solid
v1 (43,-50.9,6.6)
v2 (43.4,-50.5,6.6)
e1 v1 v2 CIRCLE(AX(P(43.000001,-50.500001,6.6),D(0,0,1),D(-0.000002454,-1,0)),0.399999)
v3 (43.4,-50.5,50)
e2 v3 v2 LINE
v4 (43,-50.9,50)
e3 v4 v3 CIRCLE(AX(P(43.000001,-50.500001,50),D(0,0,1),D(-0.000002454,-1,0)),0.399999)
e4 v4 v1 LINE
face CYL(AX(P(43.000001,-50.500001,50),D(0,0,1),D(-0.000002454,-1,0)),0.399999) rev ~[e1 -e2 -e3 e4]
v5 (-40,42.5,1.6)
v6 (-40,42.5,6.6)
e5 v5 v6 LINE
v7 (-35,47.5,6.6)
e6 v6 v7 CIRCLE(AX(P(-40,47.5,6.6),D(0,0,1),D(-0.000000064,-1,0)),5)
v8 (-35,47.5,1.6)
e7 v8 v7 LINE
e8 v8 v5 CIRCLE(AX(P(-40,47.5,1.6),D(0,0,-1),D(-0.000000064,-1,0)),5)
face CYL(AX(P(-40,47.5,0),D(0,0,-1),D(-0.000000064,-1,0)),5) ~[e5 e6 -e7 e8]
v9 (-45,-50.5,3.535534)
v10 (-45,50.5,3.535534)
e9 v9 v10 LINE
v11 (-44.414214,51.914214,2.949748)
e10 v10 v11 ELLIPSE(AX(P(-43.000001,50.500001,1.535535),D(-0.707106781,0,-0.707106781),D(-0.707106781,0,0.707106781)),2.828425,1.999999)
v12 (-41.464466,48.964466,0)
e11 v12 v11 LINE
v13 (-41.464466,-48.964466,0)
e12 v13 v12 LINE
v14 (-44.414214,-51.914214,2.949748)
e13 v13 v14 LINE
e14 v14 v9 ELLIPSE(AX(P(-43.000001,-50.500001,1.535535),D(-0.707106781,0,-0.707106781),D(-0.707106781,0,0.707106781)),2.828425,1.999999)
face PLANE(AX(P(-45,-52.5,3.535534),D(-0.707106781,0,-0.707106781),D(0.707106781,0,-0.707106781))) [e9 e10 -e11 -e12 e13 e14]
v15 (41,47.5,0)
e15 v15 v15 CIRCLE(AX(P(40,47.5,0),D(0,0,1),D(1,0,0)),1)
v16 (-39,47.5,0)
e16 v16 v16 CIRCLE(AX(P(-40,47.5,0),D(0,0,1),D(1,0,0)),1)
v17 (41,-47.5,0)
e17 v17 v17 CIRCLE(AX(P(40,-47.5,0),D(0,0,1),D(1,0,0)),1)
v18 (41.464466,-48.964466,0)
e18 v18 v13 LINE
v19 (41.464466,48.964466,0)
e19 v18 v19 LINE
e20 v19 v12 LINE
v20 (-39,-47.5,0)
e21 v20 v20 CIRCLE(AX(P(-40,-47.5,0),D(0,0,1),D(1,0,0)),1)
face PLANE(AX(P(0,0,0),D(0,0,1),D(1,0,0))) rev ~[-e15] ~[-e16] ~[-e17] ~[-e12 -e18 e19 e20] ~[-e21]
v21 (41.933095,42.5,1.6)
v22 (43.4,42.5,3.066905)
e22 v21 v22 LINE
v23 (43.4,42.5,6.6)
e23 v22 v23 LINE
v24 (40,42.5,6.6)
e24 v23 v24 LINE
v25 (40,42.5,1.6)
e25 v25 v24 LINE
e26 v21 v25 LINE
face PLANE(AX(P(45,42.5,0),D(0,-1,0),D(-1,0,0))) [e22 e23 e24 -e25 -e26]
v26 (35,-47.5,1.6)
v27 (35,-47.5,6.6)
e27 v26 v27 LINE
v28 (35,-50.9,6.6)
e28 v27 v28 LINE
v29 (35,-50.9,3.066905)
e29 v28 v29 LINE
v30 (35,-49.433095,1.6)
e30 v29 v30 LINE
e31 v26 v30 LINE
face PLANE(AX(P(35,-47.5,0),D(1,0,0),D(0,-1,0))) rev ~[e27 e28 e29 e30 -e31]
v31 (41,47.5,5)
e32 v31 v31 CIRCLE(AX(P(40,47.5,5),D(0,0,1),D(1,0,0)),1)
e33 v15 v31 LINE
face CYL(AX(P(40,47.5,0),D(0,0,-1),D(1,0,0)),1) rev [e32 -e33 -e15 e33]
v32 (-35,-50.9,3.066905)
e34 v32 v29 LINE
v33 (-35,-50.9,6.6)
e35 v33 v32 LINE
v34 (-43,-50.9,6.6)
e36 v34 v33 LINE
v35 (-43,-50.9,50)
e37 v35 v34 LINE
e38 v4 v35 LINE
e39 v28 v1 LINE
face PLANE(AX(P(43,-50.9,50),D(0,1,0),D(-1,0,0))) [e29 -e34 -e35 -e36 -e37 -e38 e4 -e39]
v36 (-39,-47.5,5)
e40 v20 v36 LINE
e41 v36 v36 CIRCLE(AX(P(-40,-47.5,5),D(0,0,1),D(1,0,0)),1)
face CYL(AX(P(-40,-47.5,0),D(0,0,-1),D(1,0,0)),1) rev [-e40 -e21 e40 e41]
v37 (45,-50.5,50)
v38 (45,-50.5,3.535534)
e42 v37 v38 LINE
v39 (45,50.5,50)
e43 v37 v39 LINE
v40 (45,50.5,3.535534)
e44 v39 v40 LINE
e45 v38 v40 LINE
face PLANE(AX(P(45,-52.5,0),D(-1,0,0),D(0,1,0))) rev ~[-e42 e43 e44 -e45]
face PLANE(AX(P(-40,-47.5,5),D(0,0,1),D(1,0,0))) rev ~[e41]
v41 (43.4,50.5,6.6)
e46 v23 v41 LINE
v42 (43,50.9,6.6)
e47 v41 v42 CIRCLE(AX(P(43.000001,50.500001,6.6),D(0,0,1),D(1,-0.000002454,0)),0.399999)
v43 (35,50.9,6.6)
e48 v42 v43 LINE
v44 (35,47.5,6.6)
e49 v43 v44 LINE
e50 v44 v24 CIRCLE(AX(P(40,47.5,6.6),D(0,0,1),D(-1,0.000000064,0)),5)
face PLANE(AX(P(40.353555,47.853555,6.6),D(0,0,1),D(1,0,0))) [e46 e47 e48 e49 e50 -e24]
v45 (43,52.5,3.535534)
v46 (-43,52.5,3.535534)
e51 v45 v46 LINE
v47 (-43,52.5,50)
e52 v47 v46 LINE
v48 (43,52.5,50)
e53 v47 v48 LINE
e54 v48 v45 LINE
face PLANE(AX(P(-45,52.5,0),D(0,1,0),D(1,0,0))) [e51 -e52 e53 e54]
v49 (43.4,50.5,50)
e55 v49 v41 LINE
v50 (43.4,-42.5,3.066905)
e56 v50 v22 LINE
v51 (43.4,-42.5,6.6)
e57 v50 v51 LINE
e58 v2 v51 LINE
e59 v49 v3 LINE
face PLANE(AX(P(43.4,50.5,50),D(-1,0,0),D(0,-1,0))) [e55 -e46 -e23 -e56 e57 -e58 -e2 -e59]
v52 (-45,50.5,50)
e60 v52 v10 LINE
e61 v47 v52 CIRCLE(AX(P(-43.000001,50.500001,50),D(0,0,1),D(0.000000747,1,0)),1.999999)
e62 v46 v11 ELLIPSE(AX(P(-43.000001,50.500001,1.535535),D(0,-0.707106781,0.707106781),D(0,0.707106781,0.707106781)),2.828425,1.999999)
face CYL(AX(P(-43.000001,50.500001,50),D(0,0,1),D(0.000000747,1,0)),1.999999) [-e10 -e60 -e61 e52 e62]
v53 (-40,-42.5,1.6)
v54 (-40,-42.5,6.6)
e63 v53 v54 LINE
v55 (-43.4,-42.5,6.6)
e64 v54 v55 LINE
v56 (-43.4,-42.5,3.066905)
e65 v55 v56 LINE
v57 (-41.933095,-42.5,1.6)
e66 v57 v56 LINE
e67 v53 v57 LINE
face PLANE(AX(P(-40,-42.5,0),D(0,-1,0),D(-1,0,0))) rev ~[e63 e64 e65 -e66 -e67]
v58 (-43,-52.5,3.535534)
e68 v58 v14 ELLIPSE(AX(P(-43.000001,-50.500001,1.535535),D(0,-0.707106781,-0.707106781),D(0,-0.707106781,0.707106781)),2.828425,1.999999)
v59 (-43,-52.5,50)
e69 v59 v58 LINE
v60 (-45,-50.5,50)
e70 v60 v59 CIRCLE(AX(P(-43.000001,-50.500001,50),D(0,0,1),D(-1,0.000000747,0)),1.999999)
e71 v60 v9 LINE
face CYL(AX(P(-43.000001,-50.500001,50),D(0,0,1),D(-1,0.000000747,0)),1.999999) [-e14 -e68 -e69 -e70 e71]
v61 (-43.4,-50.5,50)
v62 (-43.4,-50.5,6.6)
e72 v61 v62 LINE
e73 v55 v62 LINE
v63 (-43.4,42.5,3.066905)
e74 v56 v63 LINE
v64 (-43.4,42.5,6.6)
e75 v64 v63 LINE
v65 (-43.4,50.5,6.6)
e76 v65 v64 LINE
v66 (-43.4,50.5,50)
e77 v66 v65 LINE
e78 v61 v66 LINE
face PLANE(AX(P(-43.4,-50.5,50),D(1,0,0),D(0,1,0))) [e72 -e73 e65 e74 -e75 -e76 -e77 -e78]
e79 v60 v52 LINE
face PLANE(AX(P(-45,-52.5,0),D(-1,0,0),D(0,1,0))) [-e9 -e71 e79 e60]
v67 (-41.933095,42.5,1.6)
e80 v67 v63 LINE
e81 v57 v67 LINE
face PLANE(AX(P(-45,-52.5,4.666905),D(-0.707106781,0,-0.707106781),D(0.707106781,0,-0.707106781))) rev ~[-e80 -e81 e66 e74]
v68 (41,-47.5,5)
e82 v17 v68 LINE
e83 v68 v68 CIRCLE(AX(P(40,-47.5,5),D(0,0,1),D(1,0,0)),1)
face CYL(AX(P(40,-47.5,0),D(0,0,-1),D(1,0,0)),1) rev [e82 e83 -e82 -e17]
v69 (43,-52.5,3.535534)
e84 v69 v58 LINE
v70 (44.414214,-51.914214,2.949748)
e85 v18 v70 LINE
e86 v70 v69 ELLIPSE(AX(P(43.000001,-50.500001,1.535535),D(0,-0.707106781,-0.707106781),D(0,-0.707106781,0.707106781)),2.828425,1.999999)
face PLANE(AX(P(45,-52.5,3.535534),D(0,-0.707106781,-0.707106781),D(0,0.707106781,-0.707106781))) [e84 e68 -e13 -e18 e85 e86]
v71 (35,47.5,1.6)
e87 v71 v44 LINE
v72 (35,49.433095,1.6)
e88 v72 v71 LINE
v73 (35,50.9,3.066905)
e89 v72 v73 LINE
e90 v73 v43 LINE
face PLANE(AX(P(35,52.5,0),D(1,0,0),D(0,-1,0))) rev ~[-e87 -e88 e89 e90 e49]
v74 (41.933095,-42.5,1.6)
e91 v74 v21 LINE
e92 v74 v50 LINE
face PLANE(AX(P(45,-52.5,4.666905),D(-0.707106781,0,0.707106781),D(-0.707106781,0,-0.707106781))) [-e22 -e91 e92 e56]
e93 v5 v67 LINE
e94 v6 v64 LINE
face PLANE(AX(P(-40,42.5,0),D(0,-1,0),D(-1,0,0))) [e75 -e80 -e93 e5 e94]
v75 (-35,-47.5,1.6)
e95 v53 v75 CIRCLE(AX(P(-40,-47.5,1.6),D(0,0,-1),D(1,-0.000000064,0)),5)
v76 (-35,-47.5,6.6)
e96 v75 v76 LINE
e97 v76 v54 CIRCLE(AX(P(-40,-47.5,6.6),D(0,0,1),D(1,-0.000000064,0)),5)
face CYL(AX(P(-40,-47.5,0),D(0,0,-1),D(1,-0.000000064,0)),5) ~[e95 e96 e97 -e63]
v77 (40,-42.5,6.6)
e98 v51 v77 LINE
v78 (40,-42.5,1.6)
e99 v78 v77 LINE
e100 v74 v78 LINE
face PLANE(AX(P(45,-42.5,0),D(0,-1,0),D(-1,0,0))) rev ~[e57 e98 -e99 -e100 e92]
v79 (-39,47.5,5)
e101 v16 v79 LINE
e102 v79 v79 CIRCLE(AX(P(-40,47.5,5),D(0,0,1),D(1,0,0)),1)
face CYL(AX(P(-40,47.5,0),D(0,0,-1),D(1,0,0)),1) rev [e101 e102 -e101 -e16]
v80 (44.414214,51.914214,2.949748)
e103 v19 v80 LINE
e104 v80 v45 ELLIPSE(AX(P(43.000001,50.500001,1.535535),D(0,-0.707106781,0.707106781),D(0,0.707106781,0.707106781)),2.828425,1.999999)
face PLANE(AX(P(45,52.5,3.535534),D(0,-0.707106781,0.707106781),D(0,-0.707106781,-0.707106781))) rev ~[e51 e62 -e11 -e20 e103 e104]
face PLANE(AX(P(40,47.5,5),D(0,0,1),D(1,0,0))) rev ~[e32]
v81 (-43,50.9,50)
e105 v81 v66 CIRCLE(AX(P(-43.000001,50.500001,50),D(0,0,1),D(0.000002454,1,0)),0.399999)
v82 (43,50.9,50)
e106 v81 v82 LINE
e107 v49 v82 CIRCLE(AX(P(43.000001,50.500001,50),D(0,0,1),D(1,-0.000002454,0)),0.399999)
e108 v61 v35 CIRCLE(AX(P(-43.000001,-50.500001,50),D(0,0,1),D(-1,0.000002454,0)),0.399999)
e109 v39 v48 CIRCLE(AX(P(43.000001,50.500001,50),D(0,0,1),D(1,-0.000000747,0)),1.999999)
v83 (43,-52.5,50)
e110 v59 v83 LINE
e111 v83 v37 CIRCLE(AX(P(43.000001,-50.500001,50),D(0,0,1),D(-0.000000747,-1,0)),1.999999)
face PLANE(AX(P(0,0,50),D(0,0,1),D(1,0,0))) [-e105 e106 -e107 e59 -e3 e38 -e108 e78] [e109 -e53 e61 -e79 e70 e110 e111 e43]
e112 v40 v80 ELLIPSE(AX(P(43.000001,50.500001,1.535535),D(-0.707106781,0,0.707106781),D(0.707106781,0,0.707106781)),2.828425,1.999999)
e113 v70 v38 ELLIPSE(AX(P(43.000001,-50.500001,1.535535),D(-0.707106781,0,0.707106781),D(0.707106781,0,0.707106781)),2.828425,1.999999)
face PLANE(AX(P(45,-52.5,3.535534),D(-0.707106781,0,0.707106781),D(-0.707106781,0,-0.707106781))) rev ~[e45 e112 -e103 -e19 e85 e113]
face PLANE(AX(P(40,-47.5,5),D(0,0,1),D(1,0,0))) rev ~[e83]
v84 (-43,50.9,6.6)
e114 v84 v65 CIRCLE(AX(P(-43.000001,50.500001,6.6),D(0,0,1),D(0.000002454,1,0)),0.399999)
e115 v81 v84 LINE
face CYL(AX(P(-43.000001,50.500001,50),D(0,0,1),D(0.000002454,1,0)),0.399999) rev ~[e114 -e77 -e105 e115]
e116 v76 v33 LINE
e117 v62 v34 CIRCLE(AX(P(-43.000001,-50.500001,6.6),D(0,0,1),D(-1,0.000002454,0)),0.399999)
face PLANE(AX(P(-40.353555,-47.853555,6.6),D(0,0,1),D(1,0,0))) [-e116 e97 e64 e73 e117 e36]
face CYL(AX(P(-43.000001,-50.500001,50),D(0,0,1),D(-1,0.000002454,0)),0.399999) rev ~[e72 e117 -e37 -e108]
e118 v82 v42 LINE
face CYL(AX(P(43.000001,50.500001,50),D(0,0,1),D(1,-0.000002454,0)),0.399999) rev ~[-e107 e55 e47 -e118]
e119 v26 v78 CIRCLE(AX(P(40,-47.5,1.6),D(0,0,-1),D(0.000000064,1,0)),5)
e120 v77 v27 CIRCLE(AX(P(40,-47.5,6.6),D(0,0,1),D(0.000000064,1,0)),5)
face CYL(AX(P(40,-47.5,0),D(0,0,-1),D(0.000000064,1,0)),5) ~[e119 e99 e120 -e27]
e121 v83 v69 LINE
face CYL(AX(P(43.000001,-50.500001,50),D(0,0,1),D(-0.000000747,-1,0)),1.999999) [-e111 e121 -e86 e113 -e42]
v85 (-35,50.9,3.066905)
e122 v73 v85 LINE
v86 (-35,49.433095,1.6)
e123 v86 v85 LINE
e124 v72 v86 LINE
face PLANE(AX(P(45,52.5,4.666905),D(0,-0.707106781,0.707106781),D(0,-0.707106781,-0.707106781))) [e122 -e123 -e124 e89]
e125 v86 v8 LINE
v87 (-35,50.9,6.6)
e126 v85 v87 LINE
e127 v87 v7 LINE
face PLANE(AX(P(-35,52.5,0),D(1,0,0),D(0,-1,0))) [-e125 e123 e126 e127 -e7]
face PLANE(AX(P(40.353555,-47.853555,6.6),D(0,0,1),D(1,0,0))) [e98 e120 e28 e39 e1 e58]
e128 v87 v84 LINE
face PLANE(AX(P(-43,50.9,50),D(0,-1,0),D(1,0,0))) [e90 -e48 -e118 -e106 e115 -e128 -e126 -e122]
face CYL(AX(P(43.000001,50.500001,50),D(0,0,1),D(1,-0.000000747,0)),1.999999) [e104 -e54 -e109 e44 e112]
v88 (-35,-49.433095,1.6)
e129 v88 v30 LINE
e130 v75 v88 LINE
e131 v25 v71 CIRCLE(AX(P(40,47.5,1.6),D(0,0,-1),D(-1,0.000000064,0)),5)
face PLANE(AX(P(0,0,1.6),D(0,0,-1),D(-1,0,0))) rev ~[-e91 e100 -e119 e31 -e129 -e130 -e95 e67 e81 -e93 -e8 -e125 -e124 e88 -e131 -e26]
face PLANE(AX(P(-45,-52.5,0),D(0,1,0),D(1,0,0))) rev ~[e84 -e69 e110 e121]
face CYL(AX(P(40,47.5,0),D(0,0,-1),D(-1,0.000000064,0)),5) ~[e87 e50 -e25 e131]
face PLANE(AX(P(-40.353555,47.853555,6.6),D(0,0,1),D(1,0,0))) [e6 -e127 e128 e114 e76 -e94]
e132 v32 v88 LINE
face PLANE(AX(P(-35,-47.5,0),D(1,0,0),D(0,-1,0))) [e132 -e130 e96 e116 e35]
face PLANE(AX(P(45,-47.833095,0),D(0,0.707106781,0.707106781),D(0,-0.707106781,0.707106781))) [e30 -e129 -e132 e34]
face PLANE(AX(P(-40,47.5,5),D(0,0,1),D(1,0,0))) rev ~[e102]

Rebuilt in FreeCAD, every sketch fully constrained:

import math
import FreeCAD as App
import Part
import Sketcher

V = App.Vector
Q = App.Units.Quantity

doc = App.newDocument("Part")
params = doc.addObject("Spreadsheet::Sheet", "Params")
for row, (alias, value) in enumerate([
    ("sketch1_width", "90 mm"),
    ("sketch1_height", "105 mm"),
    ("pad1_length", "50 mm"),
    ("sketch2_radius", "0.399999 mm"),
    ("sketch2_width", "86 mm"),
    ("sketch2_height", "101 mm"),
    ("pocket1_length", "48.4 mm"),
    ("sketch3_length", "6.6 mm"),
    ("pad2_length", "105 mm"),
    ("sketch4_length", "6.6 mm"),
    ("pad3_length", "90 mm"),
    ("sketch5_radius", "5 mm"),
    ("sketch5_width", "10 mm"),
    ("pad4_length", "6.6 mm"),
    ("sketch6_diameter", "2 mm"),
    ("pocket2_length", "5 mm"),
    ("sketch7_length", "5 mm"),
    ("sketch8_length", "5 mm"),
    ("sketch9_radius", "1.999999 mm"),
], start=1):
    params.set(f"A{row}", alias)
    params.set(f"B{row}", "=" + value)
    params.setAlias(f"B{row}", alias)

body = doc.addObject("PartDesign::Body", "Body")

sketch1 = doc.addObject("Sketcher::SketchObject", "Sketch")
body.addObject(sketch1)
sketch1.AttachmentSupport = (doc.XY_Plane, [""])
sketch1.MapMode = "FlatFace"
sketch1.addGeometry(Part.LineSegment(V(-45, 52, 0), V(-45, -52, 0)), False)
sketch1.addGeometry(Part.LineSegment(V(-45, -52, 0), V(45, -52, 0)), False)
sketch1.addGeometry(Part.LineSegment(V(45, -52, 0), V(45, 52, 0)), False)
sketch1.addGeometry(Part.LineSegment(V(45, 52, 0), V(-45, 52, 0)), False)
sketch1.addConstraint(Sketcher.Constraint("Coincident", 0, 2, 1, 1))
sketch1.addConstraint(Sketcher.Constraint("Coincident", 1, 2, 2, 1))
sketch1.addConstraint(Sketcher.Constraint("Coincident", 2, 2, 3, 1))
sketch1.addConstraint(Sketcher.Constraint("Coincident", 3, 2, 0, 1))
sketch1.addConstraint(Sketcher.Constraint("Vertical", 0))
sketch1.addConstraint(Sketcher.Constraint("Horizontal", 1))
sketch1.addConstraint(Sketcher.Constraint("Vertical", 2))
sketch1.addConstraint(Sketcher.Constraint("Horizontal", 3))
sketch1.addConstraint(Sketcher.Constraint("Symmetric", 0, 2, 2, 2, -1, 1))
sketch1.addConstraint(Sketcher.Constraint("DistanceX", 1, 1, 1, 2, Q("90 mm")))
sketch1.addConstraint(Sketcher.Constraint("DistanceY", 0, 2, 0, 1, Q("105 mm")))
sketch1.setExpression("Constraints[9]", "Params.sketch1_width")
sketch1.setExpression("Constraints[10]", "Params.sketch1_height")
pad1 = doc.addObject("PartDesign::Pad", "Pad")
body.addObject(pad1)
pad1.Profile = sketch1
pad1.setExpression("Length", "Params.pad1_length")

sketch2 = doc.addObject("Sketcher::SketchObject", "Sketch001")
body.addObject(sketch2)
sketch2.AttachmentSupport = (doc.XY_Plane, [""])
sketch2.MapMode = "FlatFace"
sketch2.AttachmentOffset = App.Placement(V(0, 0, 50), App.Rotation())
sketch2.addGeometry(Part.LineSegment(V(43, 50.9, 0), V(-43, 50.9, 0)), False)
sketch2.addGeometry(Part.ArcOfCircle(Part.Circle(V(-43, 50.5, 0), V(0, 0, 1), 0.4), math.radians(90), math.radians(180)), False)
sketch2.addGeometry(Part.LineSegment(V(-43.4, 50.5, 0), V(-43.4, -50.5, 0)), False)
sketch2.addGeometry(Part.ArcOfCircle(Part.Circle(V(-43, -50.5, 0), V(0, 0, 1), 0.4), math.radians(180), math.radians(270)), False)
sketch2.addGeometry(Part.LineSegment(V(-43, -50.9, 0), V(43, -50.9, 0)), False)
sketch2.addGeometry(Part.ArcOfCircle(Part.Circle(V(43, -50.5, 0), V(0, 0, 1), 0.4), math.radians(-90), math.radians(0)), False)
sketch2.addGeometry(Part.LineSegment(V(43.4, -50.5, 0), V(43.4, 50.5, 0)), False)
sketch2.addGeometry(Part.ArcOfCircle(Part.Circle(V(43, 50.5, 0), V(0, 0, 1), 0.4), math.radians(0), math.radians(90)), False)
sketch2.addConstraint(Sketcher.Constraint("Coincident", 0, 2, 1, 1))
sketch2.addConstraint(Sketcher.Constraint("Coincident", 1, 2, 2, 1))
sketch2.addConstraint(Sketcher.Constraint("Coincident", 2, 2, 3, 1))
sketch2.addConstraint(Sketcher.Constraint("Coincident", 3, 2, 4, 1))
sketch2.addConstraint(Sketcher.Constraint("Coincident", 4, 2, 5, 1))
sketch2.addConstraint(Sketcher.Constraint("Coincident", 5, 2, 6, 1))
sketch2.addConstraint(Sketcher.Constraint("Coincident", 6, 2, 7, 1))
sketch2.addConstraint(Sketcher.Constraint("Coincident", 7, 2, 0, 1))
sketch2.addConstraint(Sketcher.Constraint("Horizontal", 0))
sketch2.addConstraint(Sketcher.Constraint("Vertical", 2))
sketch2.addConstraint(Sketcher.Constraint("Horizontal", 4))
sketch2.addConstraint(Sketcher.Constraint("Vertical", 6))
sketch2.addConstraint(Sketcher.Constraint("Equal", 1, 3))
sketch2.addConstraint(Sketcher.Constraint("Equal", 3, 5))
sketch2.addConstraint(Sketcher.Constraint("Equal", 5, 7))
sketch2.addConstraint(Sketcher.Constraint("Symmetric", 1, 3, 5, 3, -1, 1))
sketch2.addConstraint(Sketcher.Constraint("Horizontal", 7, 3, 1, 2))
sketch2.addConstraint(Sketcher.Constraint("Horizontal", 5, 3, 2, 2))
sketch2.addConstraint(Sketcher.Constraint("Horizontal", 2, 2, 5, 2))
sketch2.addConstraint(Sketcher.Constraint("Horizontal", 1, 2, 6, 2))
sketch2.addConstraint(Sketcher.Constraint("Vertical", 3, 3, 0, 2))
sketch2.addConstraint(Sketcher.Constraint("Vertical", 0, 2, 3, 2))
sketch2.addConstraint(Sketcher.Constraint("Vertical", 7, 3, 4, 2))
sketch2.addConstraint(Sketcher.Constraint("Vertical", 4, 2, 7, 2))
sketch2.addConstraint(Sketcher.Constraint("Radius", 1, Q("0.399999 mm")))
sketch2.addConstraint(Sketcher.Constraint("DistanceX", 0, 2, 0, 1, Q("86 mm")))
sketch2.addConstraint(Sketcher.Constraint("DistanceY", 2, 2, 2, 1, Q("101 mm")))
sketch2.setExpression("Constraints[24]", "Params.sketch2_radius")
sketch2.setExpression("Constraints[25]", "Params.sketch2_width")
sketch2.setExpression("Constraints[26]", "Params.sketch2_height")
pocket1 = doc.addObject("PartDesign::Pocket", "Pocket")
body.addObject(pocket1)
pocket1.Profile = sketch2
pocket1.setExpression("Length", "Params.pocket1_length")

sketch3 = doc.addObject("Sketcher::SketchObject", "Sketch002")
body.addObject(sketch3)
sketch3.AttachmentSupport = (doc.XZ_Plane, [""])
sketch3.MapMode = "FlatFace"
sketch3.AttachmentOffset = App.Placement(V(0, 0, 52.5), App.Rotation())
sketch3.addGeometry(Part.LineSegment(V(-40.3, 0, 0), V(-45, 4.7, 0)), False)
sketch3.addGeometry(Part.LineSegment(V(-45, 4.7, 0), V(-45, 0, 0)), False)
sketch3.addGeometry(Part.LineSegment(V(-45, 0, 0), V(-40.3, 0, 0)), False)
sketch3.addGeometry(Part.LineSegment(V(40.3, 0, 0), V(45, 0, 0)), False)
sketch3.addGeometry(Part.LineSegment(V(45, 0, 0), V(45, 4.7, 0)), False)
sketch3.addGeometry(Part.LineSegment(V(45, 4.7, 0), V(40.3, 0, 0)), False)
sketch3.addConstraint(Sketcher.Constraint("Coincident", 0, 2, 1, 1))
sketch3.addConstraint(Sketcher.Constraint("Coincident", 1, 2, 2, 1))
sketch3.addConstraint(Sketcher.Constraint("Coincident", 2, 2, 0, 1))
sketch3.addConstraint(Sketcher.Constraint("Coincident", 3, 2, 4, 1))
sketch3.addConstraint(Sketcher.Constraint("Coincident", 4, 2, 5, 1))
sketch3.addConstraint(Sketcher.Constraint("Coincident", 5, 2, 3, 1))
sketch3.addConstraint(Sketcher.Constraint("Vertical", 1))
sketch3.addConstraint(Sketcher.Constraint("Horizontal", 2))
sketch3.addConstraint(Sketcher.Constraint("Horizontal", 3))
sketch3.addConstraint(Sketcher.Constraint("Vertical", 4))
sketch3.addConstraint(Sketcher.Constraint("Symmetric", 1, 2, 3, 2, -1, 1))
sketch3.addConstraint(Sketcher.Constraint("Symmetric", 2, 2, 5, 2, -2))
sketch3.addConstraint(Sketcher.Constraint("Perpendicular", 0, 5))
sketch3.addConstraint(Sketcher.Constraint("Horizontal", 0, 2, 4, 2))
sketch3.addConstraint(Sketcher.Constraint("DistanceX", 0, 2, -1, 1, Q("45 mm")))
sketch3.addConstraint(Sketcher.Constraint("Distance", 0, Q("6.6 mm")))
sketch3.setExpression("Constraints[15]", "Params.sketch3_length")
pad2 = doc.addObject("PartDesign::Pad", "Pad001")
body.addObject(pad2)
pad2.Profile = sketch3
pad2.setExpression("Length", "Params.pad2_length")
pad2.Reversed = True

sketch4 = doc.addObject("Sketcher::SketchObject", "Sketch003")
body.addObject(sketch4)
sketch4.AttachmentSupport = (doc.YZ_Plane, [""])
sketch4.MapMode = "FlatFace"
sketch4.AttachmentOffset = App.Placement(V(0, 0, 45), App.Rotation())
sketch4.addGeometry(Part.LineSegment(V(-52.5, 4.7, 0), V(-52.5, 0, 0)), False)
sketch4.addGeometry(Part.LineSegment(V(-52.5, 0, 0), V(-47.8, 0, 0)), False)
sketch4.addGeometry(Part.LineSegment(V(-47.8, 0, 0), V(-52.5, 4.7, 0)), False)
sketch4.addGeometry(Part.LineSegment(V(47.8, 0, 0), V(52.5, 0, 0)), False)
sketch4.addGeometry(Part.LineSegment(V(52.5, 0, 0), V(52.5, 4.7, 0)), False)
sketch4.addGeometry(Part.LineSegment(V(52.5, 4.7, 0), V(47.8, 0, 0)), False)
sketch4.addConstraint(Sketcher.Constraint("Coincident", 0, 2, 1, 1))
sketch4.addConstraint(Sketcher.Constraint("Coincident", 1, 2, 2, 1))
sketch4.addConstraint(Sketcher.Constraint("Coincident", 2, 2, 0, 1))
sketch4.addConstraint(Sketcher.Constraint("Coincident", 3, 2, 4, 1))
sketch4.addConstraint(Sketcher.Constraint("Coincident", 4, 2, 5, 1))
sketch4.addConstraint(Sketcher.Constraint("Coincident", 5, 2, 3, 1))
sketch4.addConstraint(Sketcher.Constraint("Vertical", 0))
sketch4.addConstraint(Sketcher.Constraint("Horizontal", 1))
sketch4.addConstraint(Sketcher.Constraint("Horizontal", 3))
sketch4.addConstraint(Sketcher.Constraint("Vertical", 4))
sketch4.addConstraint(Sketcher.Constraint("Symmetric", 0, 2, 3, 2, -1, 1))
sketch4.addConstraint(Sketcher.Constraint("Symmetric", 1, 2, 5, 2, -2))
sketch4.addConstraint(Sketcher.Constraint("Perpendicular", 2, 5))
sketch4.addConstraint(Sketcher.Constraint("Horizontal", 2, 2, 4, 2))
sketch4.addConstraint(Sketcher.Constraint("DistanceX", 0, 2, 3, 2, Q("105 mm")))
sketch4.addConstraint(Sketcher.Constraint("Distance", 2, Q("6.6 mm")))
sketch4.setExpression("Constraints[15]", "Params.sketch4_length")
pad3 = doc.addObject("PartDesign::Pad", "Pad002")
body.addObject(pad3)
pad3.Profile = sketch4
pad3.setExpression("Length", "Params.pad3_length")
pad3.Reversed = True

sketch5 = doc.addObject("Sketcher::SketchObject", "Sketch004")
body.addObject(sketch5)
sketch5.AttachmentSupport = (doc.XY_Plane, [""])
sketch5.MapMode = "FlatFace"
sketch5.addGeometry(Part.ArcOfCircle(Part.Circle(V(-40, 47.5, 0), V(0, 0, 1), 5), math.radians(-90), math.radians(0)), False)
sketch5.addGeometry(Part.LineSegment(V(-35, 47.5, 0), V(-35, 52.5, 0)), False)
sketch5.addGeometry(Part.LineSegment(V(-35, 52.5, 0), V(-45, 52.5, 0)), False)
sketch5.addGeometry(Part.LineSegment(V(-45, 52.5, 0), V(-45, 42.5, 0)), False)
sketch5.addGeometry(Part.LineSegment(V(-45, 42.5, 0), V(-40, 42.5, 0)), False)
sketch5.addGeometry(Part.ArcOfCircle(Part.Circle(V(40, 47.5, 0), V(0, 0, 1), 5), math.radians(180), math.radians(270)), False)
sketch5.addGeometry(Part.LineSegment(V(40, 42.5, 0), V(45, 42.5, 0)), False)
sketch5.addGeometry(Part.LineSegment(V(45, 42.5, 0), V(45, 52.5, 0)), False)
sketch5.addGeometry(Part.LineSegment(V(45, 52.5, 0), V(35, 52.5, 0)), False)
sketch5.addGeometry(Part.LineSegment(V(35, 52.5, 0), V(35, 47.5, 0)), False)
sketch5.addGeometry(Part.ArcOfCircle(Part.Circle(V(40, -47.5, 0), V(0, 0, 1), 5), math.radians(90), math.radians(180)), False)
sketch5.addGeometry(Part.LineSegment(V(35, -47.5, 0), V(35, -52.5, 0)), False)
sketch5.addGeometry(Part.LineSegment(V(35, -52.5, 0), V(45, -52.5, 0)), False)
sketch5.addGeometry(Part.LineSegment(V(45, -52.5, 0), V(45, -42.5, 0)), False)
sketch5.addGeometry(Part.LineSegment(V(45, -42.5, 0), V(40, -42.5, 0)), False)
sketch5.addGeometry(Part.ArcOfCircle(Part.Circle(V(-40, -47.5, 0), V(0, 0, 1), 5), math.radians(0), math.radians(90)), False)
sketch5.addGeometry(Part.LineSegment(V(-40, -42.5, 0), V(-45, -42.5, 0)), False)
sketch5.addGeometry(Part.LineSegment(V(-45, -42.5, 0), V(-45, -52.5, 0)), False)
sketch5.addGeometry(Part.LineSegment(V(-45, -52.5, 0), V(-35, -52.5, 0)), False)
sketch5.addGeometry(Part.LineSegment(V(-35, -52.5, 0), V(-35, -47.5, 0)), False)
sketch5.addConstraint(Sketcher.Constraint("Tangent", 0, 2, 1, 1))
sketch5.addConstraint(Sketcher.Constraint("Coincident", 1, 2, 2, 1))
sketch5.addConstraint(Sketcher.Constraint("Coincident", 2, 2, 3, 1))
sketch5.addConstraint(Sketcher.Constraint("Coincident", 3, 2, 4, 1))
sketch5.addConstraint(Sketcher.Constraint("Tangent", 4, 2, 0, 1))
sketch5.addConstraint(Sketcher.Constraint("Tangent", 5, 2, 6, 1))
sketch5.addConstraint(Sketcher.Constraint("Coincident", 6, 2, 7, 1))
sketch5.addConstraint(Sketcher.Constraint("Coincident", 7, 2, 8, 1))
sketch5.addConstraint(Sketcher.Constraint("Coincident", 8, 2, 9, 1))
sketch5.addConstraint(Sketcher.Constraint("Tangent", 9, 2, 5, 1))
sketch5.addConstraint(Sketcher.Constraint("Tangent", 10, 2, 11, 1))
sketch5.addConstraint(Sketcher.Constraint("Coincident", 11, 2, 12, 1))
sketch5.addConstraint(Sketcher.Constraint("Coincident", 12, 2, 13, 1))
sketch5.addConstraint(Sketcher.Constraint("Coincident", 13, 2, 14, 1))
sketch5.addConstraint(Sketcher.Constraint("Tangent", 14, 2, 10, 1))
sketch5.addConstraint(Sketcher.Constraint("Tangent", 15, 2, 16, 1))
sketch5.addConstraint(Sketcher.Constraint("Coincident", 16, 2, 17, 1))
sketch5.addConstraint(Sketcher.Constraint("Coincident", 17, 2, 18, 1))
sketch5.addConstraint(Sketcher.Constraint("Coincident", 18, 2, 19, 1))
sketch5.addConstraint(Sketcher.Constraint("Tangent", 19, 2, 15, 1))
sketch5.addConstraint(Sketcher.Constraint("Vertical", 1))
sketch5.addConstraint(Sketcher.Constraint("Horizontal", 2))
sketch5.addConstraint(Sketcher.Constraint("Vertical", 3))
sketch5.addConstraint(Sketcher.Constraint("Horizontal", 4))
sketch5.addConstraint(Sketcher.Constraint("Horizontal", 6))
sketch5.addConstraint(Sketcher.Constraint("Vertical", 7))
sketch5.addConstraint(Sketcher.Constraint("Horizontal", 8))
sketch5.addConstraint(Sketcher.Constraint("Vertical", 9))
sketch5.addConstraint(Sketcher.Constraint("Vertical", 11))
sketch5.addConstraint(Sketcher.Constraint("Horizontal", 12))
sketch5.addConstraint(Sketcher.Constraint("Vertical", 13))
sketch5.addConstraint(Sketcher.Constraint("Horizontal", 14))
sketch5.addConstraint(Sketcher.Constraint("Horizontal", 16))
sketch5.addConstraint(Sketcher.Constraint("Vertical", 17))
sketch5.addConstraint(Sketcher.Constraint("Horizontal", 18))
sketch5.addConstraint(Sketcher.Constraint("Vertical", 19))
sketch5.addConstraint(Sketcher.Constraint("Equal", 0, 5))
sketch5.addConstraint(Sketcher.Constraint("Equal", 5, 10))
sketch5.addConstraint(Sketcher.Constraint("Equal", 10, 15))
sketch5.addConstraint(Sketcher.Constraint("Symmetric", 0, 3, 10, 3, -1, 1))
sketch5.addConstraint(Sketcher.Constraint("Symmetric", 5, 3, 15, 3, -1, 1))
sketch5.addConstraint(Sketcher.Constraint("Symmetric", 2, 2, 12, 2, -1, 1))
sketch5.addConstraint(Sketcher.Constraint("Symmetric", 7, 2, 17, 2, -1, 1))
sketch5.addConstraint(Sketcher.Constraint("Symmetric", 0, 3, 5, 3, -2))
sketch5.addConstraint(Sketcher.Constraint("Symmetric", 2, 2, 7, 2, -2))
sketch5.addConstraint(Sketcher.Constraint("Equal", 16, 1))
sketch5.addConstraint(Sketcher.Constraint("Radius", 0, Q("5 mm")))
sketch5.addConstraint(Sketcher.Constraint("DistanceX", 2, 2, 2, 1, Q("10 mm")))
sketch5.addConstraint(Sketcher.Constraint("DistanceX", 0, 3, -1, 1, Q("40 mm")))
sketch5.addConstraint(Sketcher.Constraint("DistanceY", 10, 3, 5, 3, Q("94.999999 mm")))
sketch5.setExpression("Constraints[46]", "Params.sketch5_radius")
sketch5.setExpression("Constraints[47]", "Params.sketch5_width")
pad4 = doc.addObject("PartDesign::Pad", "Pad003")
body.addObject(pad4)
pad4.Profile = sketch5
pad4.setExpression("Length", "Params.pad4_length")

sketch6 = doc.addObject("Sketcher::SketchObject", "Sketch005")
body.addObject(sketch6)
sketch6.AttachmentSupport = (doc.XY_Plane, [""])
sketch6.MapMode = "FlatFace"
sketch6.addGeometry(Part.Circle(V(-40, 47.5, 0), V(0, 0, 1), 1), False)
sketch6.addGeometry(Part.Circle(V(40, 47.5, 0), V(0, 0, 1), 1), False)
sketch6.addGeometry(Part.Circle(V(40, -47.5, 0), V(0, 0, 1), 1), False)
sketch6.addGeometry(Part.Circle(V(-40, -47.5, 0), V(0, 0, 1), 1), False)
sketch6.addConstraint(Sketcher.Constraint("Equal", 0, 1))
sketch6.addConstraint(Sketcher.Constraint("Equal", 1, 2))
sketch6.addConstraint(Sketcher.Constraint("Equal", 2, 3))
sketch6.addConstraint(Sketcher.Constraint("Symmetric", 0, 3, 2, 3, -1, 1))
sketch6.addConstraint(Sketcher.Constraint("Symmetric", 1, 3, 3, 3, -1, 1))
sketch6.addConstraint(Sketcher.Constraint("Symmetric", 0, 3, 1, 3, -2))
sketch6.addConstraint(Sketcher.Constraint("Diameter", 0, Q("2 mm")))
sketch6.addConstraint(Sketcher.Constraint("DistanceX", 0, 3, -1, 1, Q("40 mm")))
sketch6.addConstraint(Sketcher.Constraint("DistanceY", 2, 3, 1, 3, Q("95 mm")))
sketch6.setExpression("Constraints[6]", "Params.sketch6_diameter")
pocket2 = doc.addObject("PartDesign::Pocket", "Pocket001")
body.addObject(pocket2)
pocket2.Profile = sketch6
pocket2.setExpression("Length", "Params.pocket2_length")
pocket2.Reversed = True

sketch7 = doc.addObject("Sketcher::SketchObject", "Sketch006")
body.addObject(sketch7)
sketch7.AttachmentSupport = (doc.XZ_Plane, [""])
sketch7.MapMode = "FlatFace"
sketch7.AttachmentOffset = App.Placement(V(0, 0, 52.5), App.Rotation())
sketch7.addGeometry(Part.LineSegment(V(-45, 3.5, 0), V(-45, 0, 0)), False)
sketch7.addGeometry(Part.LineSegment(V(-45, 0, 0), V(-41.5, 0, 0)), False)
sketch7.addGeometry(Part.LineSegment(V(-41.5, 0, 0), V(-45, 3.5, 0)), False)
sketch7.addGeometry(Part.LineSegment(V(41.5, 0, 0), V(45, 0, 0)), False)
sketch7.addGeometry(Part.LineSegment(V(45, 0, 0), V(45, 3.5, 0)), False)
sketch7.addGeometry(Part.LineSegment(V(45, 3.5, 0), V(41.5, 0, 0)), False)
sketch7.addConstraint(Sketcher.Constraint("Coincident", 0, 2, 1, 1))
sketch7.addConstraint(Sketcher.Constraint("Coincident", 1, 2, 2, 1))
sketch7.addConstraint(Sketcher.Constraint("Coincident", 2, 2, 0, 1))
sketch7.addConstraint(Sketcher.Constraint("Coincident", 3, 2, 4, 1))
sketch7.addConstraint(Sketcher.Constraint("Coincident", 4, 2, 5, 1))
sketch7.addConstraint(Sketcher.Constraint("Coincident", 5, 2, 3, 1))
sketch7.addConstraint(Sketcher.Constraint("Vertical", 0))
sketch7.addConstraint(Sketcher.Constraint("Horizontal", 1))
sketch7.addConstraint(Sketcher.Constraint("Horizontal", 3))
sketch7.addConstraint(Sketcher.Constraint("Vertical", 4))
sketch7.addConstraint(Sketcher.Constraint("Symmetric", 0, 2, 3, 2, -1, 1))
sketch7.addConstraint(Sketcher.Constraint("Symmetric", 1, 2, 5, 2, -2))
sketch7.addConstraint(Sketcher.Constraint("Perpendicular", 2, 5))
sketch7.addConstraint(Sketcher.Constraint("Horizontal", 2, 2, 4, 2))
sketch7.addConstraint(Sketcher.Constraint("Distance", 2, Q("5 mm")))
sketch7.addConstraint(Sketcher.Constraint("DistanceX", 0, 2, -1, 1, Q("45 mm")))
sketch7.setExpression("Constraints[14]", "Params.sketch7_length")
pocket3 = doc.addObject("PartDesign::Pocket", "Pocket002")
body.addObject(pocket3)
pocket3.Profile = sketch7
pocket3.Type = "ThroughAll"

sketch8 = doc.addObject("Sketcher::SketchObject", "Sketch007")
body.addObject(sketch8)
sketch8.AttachmentSupport = (doc.YZ_Plane, [""])
sketch8.MapMode = "FlatFace"
sketch8.AttachmentOffset = App.Placement(V(0, 0, 45), App.Rotation())
sketch8.addGeometry(Part.LineSegment(V(-52.5, 3.5, 0), V(-52.5, 0, 0)), False)
sketch8.addGeometry(Part.LineSegment(V(-52.5, 0, 0), V(-49, 0, 0)), False)
sketch8.addGeometry(Part.LineSegment(V(-49, 0, 0), V(-52.5, 3.5, 0)), False)
sketch8.addGeometry(Part.LineSegment(V(49, 0, 0), V(52.5, 0, 0)), False)
sketch8.addGeometry(Part.LineSegment(V(52.5, 0, 0), V(52.5, 3.5, 0)), False)
sketch8.addGeometry(Part.LineSegment(V(52.5, 3.5, 0), V(49, 0, 0)), False)
sketch8.addConstraint(Sketcher.Constraint("Coincident", 0, 2, 1, 1))
sketch8.addConstraint(Sketcher.Constraint("Coincident", 1, 2, 2, 1))
sketch8.addConstraint(Sketcher.Constraint("Coincident", 2, 2, 0, 1))
sketch8.addConstraint(Sketcher.Constraint("Coincident", 3, 2, 4, 1))
sketch8.addConstraint(Sketcher.Constraint("Coincident", 4, 2, 5, 1))
sketch8.addConstraint(Sketcher.Constraint("Coincident", 5, 2, 3, 1))
sketch8.addConstraint(Sketcher.Constraint("Vertical", 0))
sketch8.addConstraint(Sketcher.Constraint("Horizontal", 1))
sketch8.addConstraint(Sketcher.Constraint("Horizontal", 3))
sketch8.addConstraint(Sketcher.Constraint("Vertical", 4))
sketch8.addConstraint(Sketcher.Constraint("Symmetric", 0, 2, 3, 2, -1, 1))
sketch8.addConstraint(Sketcher.Constraint("Symmetric", 1, 2, 5, 2, -2))
sketch8.addConstraint(Sketcher.Constraint("Perpendicular", 2, 5))
sketch8.addConstraint(Sketcher.Constraint("Horizontal", 2, 2, 4, 2))
sketch8.addConstraint(Sketcher.Constraint("Distance", 2, Q("5 mm")))
sketch8.addConstraint(Sketcher.Constraint("DistanceX", 0, 2, 3, 2, Q("105 mm")))
sketch8.setExpression("Constraints[14]", "Params.sketch8_length")
pocket4 = doc.addObject("PartDesign::Pocket", "Pocket003")
body.addObject(pocket4)
pocket4.Profile = sketch8
pocket4.Type = "ThroughAll"

sketch9 = doc.addObject("Sketcher::SketchObject", "Sketch008")
body.addObject(sketch9)
sketch9.AttachmentSupport = (doc.XY_Plane, [""])
sketch9.MapMode = "FlatFace"
sketch9.AttachmentOffset = App.Placement(V(0, 0, 50), App.Rotation())
sketch9.addGeometry(Part.ArcOfCircle(Part.Circle(V(-43, 50.5, 0), V(0, 0, 1), 2), math.radians(90), math.radians(180)), False)
sketch9.addGeometry(Part.LineSegment(V(-43, 52.5, 0), V(-45, 52.5, 0)), False)
sketch9.addGeometry(Part.LineSegment(V(-45, 52.5, 0), V(-45, 50.5, 0)), False)
sketch9.addGeometry(Part.ArcOfCircle(Part.Circle(V(43, 50.5, 0), V(0, 0, 1), 2), math.radians(0), math.radians(90)), False)
sketch9.addGeometry(Part.LineSegment(V(45, 50.5, 0), V(45, 52.5, 0)), False)
sketch9.addGeometry(Part.LineSegment(V(45, 52.5, 0), V(43, 52.5, 0)), False)
sketch9.addGeometry(Part.ArcOfCircle(Part.Circle(V(43, -50.5, 0), V(0, 0, 1), 2), math.radians(-90), math.radians(0)), False)
sketch9.addGeometry(Part.LineSegment(V(43, -52.5, 0), V(45, -52.5, 0)), False)
sketch9.addGeometry(Part.LineSegment(V(45, -52.5, 0), V(45, -50.5, 0)), False)
sketch9.addGeometry(Part.ArcOfCircle(Part.Circle(V(-43, -50.5, 0), V(0, 0, 1), 2), math.radians(180), math.radians(270)), False)
sketch9.addGeometry(Part.LineSegment(V(-45, -50.5, 0), V(-45, -52.5, 0)), False)
sketch9.addGeometry(Part.LineSegment(V(-45, -52.5, 0), V(-43, -52.5, 0)), False)
sketch9.addConstraint(Sketcher.Constraint("Tangent", 0, 1, 1, 1))
sketch9.addConstraint(Sketcher.Constraint("Coincident", 1, 2, 2, 1))
sketch9.addConstraint(Sketcher.Constraint("Tangent", 2, 2, 0, 2))
sketch9.addConstraint(Sketcher.Constraint("Tangent", 3, 1, 4, 1))
sketch9.addConstraint(Sketcher.Constraint("Coincident", 4, 2, 5, 1))
sketch9.addConstraint(Sketcher.Constraint("Tangent", 5, 2, 3, 2))
sketch9.addConstraint(Sketcher.Constraint("Tangent", 6, 1, 7, 1))
sketch9.addConstraint(Sketcher.Constraint("Coincident", 7, 2, 8, 1))
sketch9.addConstraint(Sketcher.Constraint("Tangent", 8, 2, 6, 2))
sketch9.addConstraint(Sketcher.Constraint("Tangent", 9, 1, 10, 1))
sketch9.addConstraint(Sketcher.Constraint("Coincident", 10, 2, 11, 1))
sketch9.addConstraint(Sketcher.Constraint("Tangent", 11, 2, 9, 2))
sketch9.addConstraint(Sketcher.Constraint("Horizontal", 1))
sketch9.addConstraint(Sketcher.Constraint("Vertical", 2))
sketch9.addConstraint(Sketcher.Constraint("Vertical", 4))
sketch9.addConstraint(Sketcher.Constraint("Horizontal", 5))
sketch9.addConstraint(Sketcher.Constraint("Horizontal", 7))
sketch9.addConstraint(Sketcher.Constraint("Vertical", 8))
sketch9.addConstraint(Sketcher.Constraint("Vertical", 10))
sketch9.addConstraint(Sketcher.Constraint("Horizontal", 11))
sketch9.addConstraint(Sketcher.Constraint("Equal", 0, 3))
sketch9.addConstraint(Sketcher.Constraint("Equal", 3, 6))
sketch9.addConstraint(Sketcher.Constraint("Equal", 6, 9))
sketch9.addConstraint(Sketcher.Constraint("Symmetric", 0, 3, 6, 3, -1, 1))
sketch9.addConstraint(Sketcher.Constraint("Symmetric", 3, 3, 9, 3, -1, 1))
sketch9.addConstraint(Sketcher.Constraint("Symmetric", 0, 3, 3, 3, -2))
sketch9.addConstraint(Sketcher.Constraint("Radius", 0, Q("1.999999 mm")))
sketch9.addConstraint(Sketcher.Constraint("DistanceX", 0, 3, -1, 1, Q("43.000001 mm")))
sketch9.addConstraint(Sketcher.Constraint("DistanceY", 9, 3, 0, 1, Q("103.000001 mm")))
sketch9.setExpression("Constraints[26]", "Params.sketch9_radius")
pocket5 = doc.addObject("PartDesign::Pocket", "Pocket004")
body.addObject(pocket5)
pocket5.Profile = sketch9
pocket5.Type = "ThroughAll"

doc.recompute()
